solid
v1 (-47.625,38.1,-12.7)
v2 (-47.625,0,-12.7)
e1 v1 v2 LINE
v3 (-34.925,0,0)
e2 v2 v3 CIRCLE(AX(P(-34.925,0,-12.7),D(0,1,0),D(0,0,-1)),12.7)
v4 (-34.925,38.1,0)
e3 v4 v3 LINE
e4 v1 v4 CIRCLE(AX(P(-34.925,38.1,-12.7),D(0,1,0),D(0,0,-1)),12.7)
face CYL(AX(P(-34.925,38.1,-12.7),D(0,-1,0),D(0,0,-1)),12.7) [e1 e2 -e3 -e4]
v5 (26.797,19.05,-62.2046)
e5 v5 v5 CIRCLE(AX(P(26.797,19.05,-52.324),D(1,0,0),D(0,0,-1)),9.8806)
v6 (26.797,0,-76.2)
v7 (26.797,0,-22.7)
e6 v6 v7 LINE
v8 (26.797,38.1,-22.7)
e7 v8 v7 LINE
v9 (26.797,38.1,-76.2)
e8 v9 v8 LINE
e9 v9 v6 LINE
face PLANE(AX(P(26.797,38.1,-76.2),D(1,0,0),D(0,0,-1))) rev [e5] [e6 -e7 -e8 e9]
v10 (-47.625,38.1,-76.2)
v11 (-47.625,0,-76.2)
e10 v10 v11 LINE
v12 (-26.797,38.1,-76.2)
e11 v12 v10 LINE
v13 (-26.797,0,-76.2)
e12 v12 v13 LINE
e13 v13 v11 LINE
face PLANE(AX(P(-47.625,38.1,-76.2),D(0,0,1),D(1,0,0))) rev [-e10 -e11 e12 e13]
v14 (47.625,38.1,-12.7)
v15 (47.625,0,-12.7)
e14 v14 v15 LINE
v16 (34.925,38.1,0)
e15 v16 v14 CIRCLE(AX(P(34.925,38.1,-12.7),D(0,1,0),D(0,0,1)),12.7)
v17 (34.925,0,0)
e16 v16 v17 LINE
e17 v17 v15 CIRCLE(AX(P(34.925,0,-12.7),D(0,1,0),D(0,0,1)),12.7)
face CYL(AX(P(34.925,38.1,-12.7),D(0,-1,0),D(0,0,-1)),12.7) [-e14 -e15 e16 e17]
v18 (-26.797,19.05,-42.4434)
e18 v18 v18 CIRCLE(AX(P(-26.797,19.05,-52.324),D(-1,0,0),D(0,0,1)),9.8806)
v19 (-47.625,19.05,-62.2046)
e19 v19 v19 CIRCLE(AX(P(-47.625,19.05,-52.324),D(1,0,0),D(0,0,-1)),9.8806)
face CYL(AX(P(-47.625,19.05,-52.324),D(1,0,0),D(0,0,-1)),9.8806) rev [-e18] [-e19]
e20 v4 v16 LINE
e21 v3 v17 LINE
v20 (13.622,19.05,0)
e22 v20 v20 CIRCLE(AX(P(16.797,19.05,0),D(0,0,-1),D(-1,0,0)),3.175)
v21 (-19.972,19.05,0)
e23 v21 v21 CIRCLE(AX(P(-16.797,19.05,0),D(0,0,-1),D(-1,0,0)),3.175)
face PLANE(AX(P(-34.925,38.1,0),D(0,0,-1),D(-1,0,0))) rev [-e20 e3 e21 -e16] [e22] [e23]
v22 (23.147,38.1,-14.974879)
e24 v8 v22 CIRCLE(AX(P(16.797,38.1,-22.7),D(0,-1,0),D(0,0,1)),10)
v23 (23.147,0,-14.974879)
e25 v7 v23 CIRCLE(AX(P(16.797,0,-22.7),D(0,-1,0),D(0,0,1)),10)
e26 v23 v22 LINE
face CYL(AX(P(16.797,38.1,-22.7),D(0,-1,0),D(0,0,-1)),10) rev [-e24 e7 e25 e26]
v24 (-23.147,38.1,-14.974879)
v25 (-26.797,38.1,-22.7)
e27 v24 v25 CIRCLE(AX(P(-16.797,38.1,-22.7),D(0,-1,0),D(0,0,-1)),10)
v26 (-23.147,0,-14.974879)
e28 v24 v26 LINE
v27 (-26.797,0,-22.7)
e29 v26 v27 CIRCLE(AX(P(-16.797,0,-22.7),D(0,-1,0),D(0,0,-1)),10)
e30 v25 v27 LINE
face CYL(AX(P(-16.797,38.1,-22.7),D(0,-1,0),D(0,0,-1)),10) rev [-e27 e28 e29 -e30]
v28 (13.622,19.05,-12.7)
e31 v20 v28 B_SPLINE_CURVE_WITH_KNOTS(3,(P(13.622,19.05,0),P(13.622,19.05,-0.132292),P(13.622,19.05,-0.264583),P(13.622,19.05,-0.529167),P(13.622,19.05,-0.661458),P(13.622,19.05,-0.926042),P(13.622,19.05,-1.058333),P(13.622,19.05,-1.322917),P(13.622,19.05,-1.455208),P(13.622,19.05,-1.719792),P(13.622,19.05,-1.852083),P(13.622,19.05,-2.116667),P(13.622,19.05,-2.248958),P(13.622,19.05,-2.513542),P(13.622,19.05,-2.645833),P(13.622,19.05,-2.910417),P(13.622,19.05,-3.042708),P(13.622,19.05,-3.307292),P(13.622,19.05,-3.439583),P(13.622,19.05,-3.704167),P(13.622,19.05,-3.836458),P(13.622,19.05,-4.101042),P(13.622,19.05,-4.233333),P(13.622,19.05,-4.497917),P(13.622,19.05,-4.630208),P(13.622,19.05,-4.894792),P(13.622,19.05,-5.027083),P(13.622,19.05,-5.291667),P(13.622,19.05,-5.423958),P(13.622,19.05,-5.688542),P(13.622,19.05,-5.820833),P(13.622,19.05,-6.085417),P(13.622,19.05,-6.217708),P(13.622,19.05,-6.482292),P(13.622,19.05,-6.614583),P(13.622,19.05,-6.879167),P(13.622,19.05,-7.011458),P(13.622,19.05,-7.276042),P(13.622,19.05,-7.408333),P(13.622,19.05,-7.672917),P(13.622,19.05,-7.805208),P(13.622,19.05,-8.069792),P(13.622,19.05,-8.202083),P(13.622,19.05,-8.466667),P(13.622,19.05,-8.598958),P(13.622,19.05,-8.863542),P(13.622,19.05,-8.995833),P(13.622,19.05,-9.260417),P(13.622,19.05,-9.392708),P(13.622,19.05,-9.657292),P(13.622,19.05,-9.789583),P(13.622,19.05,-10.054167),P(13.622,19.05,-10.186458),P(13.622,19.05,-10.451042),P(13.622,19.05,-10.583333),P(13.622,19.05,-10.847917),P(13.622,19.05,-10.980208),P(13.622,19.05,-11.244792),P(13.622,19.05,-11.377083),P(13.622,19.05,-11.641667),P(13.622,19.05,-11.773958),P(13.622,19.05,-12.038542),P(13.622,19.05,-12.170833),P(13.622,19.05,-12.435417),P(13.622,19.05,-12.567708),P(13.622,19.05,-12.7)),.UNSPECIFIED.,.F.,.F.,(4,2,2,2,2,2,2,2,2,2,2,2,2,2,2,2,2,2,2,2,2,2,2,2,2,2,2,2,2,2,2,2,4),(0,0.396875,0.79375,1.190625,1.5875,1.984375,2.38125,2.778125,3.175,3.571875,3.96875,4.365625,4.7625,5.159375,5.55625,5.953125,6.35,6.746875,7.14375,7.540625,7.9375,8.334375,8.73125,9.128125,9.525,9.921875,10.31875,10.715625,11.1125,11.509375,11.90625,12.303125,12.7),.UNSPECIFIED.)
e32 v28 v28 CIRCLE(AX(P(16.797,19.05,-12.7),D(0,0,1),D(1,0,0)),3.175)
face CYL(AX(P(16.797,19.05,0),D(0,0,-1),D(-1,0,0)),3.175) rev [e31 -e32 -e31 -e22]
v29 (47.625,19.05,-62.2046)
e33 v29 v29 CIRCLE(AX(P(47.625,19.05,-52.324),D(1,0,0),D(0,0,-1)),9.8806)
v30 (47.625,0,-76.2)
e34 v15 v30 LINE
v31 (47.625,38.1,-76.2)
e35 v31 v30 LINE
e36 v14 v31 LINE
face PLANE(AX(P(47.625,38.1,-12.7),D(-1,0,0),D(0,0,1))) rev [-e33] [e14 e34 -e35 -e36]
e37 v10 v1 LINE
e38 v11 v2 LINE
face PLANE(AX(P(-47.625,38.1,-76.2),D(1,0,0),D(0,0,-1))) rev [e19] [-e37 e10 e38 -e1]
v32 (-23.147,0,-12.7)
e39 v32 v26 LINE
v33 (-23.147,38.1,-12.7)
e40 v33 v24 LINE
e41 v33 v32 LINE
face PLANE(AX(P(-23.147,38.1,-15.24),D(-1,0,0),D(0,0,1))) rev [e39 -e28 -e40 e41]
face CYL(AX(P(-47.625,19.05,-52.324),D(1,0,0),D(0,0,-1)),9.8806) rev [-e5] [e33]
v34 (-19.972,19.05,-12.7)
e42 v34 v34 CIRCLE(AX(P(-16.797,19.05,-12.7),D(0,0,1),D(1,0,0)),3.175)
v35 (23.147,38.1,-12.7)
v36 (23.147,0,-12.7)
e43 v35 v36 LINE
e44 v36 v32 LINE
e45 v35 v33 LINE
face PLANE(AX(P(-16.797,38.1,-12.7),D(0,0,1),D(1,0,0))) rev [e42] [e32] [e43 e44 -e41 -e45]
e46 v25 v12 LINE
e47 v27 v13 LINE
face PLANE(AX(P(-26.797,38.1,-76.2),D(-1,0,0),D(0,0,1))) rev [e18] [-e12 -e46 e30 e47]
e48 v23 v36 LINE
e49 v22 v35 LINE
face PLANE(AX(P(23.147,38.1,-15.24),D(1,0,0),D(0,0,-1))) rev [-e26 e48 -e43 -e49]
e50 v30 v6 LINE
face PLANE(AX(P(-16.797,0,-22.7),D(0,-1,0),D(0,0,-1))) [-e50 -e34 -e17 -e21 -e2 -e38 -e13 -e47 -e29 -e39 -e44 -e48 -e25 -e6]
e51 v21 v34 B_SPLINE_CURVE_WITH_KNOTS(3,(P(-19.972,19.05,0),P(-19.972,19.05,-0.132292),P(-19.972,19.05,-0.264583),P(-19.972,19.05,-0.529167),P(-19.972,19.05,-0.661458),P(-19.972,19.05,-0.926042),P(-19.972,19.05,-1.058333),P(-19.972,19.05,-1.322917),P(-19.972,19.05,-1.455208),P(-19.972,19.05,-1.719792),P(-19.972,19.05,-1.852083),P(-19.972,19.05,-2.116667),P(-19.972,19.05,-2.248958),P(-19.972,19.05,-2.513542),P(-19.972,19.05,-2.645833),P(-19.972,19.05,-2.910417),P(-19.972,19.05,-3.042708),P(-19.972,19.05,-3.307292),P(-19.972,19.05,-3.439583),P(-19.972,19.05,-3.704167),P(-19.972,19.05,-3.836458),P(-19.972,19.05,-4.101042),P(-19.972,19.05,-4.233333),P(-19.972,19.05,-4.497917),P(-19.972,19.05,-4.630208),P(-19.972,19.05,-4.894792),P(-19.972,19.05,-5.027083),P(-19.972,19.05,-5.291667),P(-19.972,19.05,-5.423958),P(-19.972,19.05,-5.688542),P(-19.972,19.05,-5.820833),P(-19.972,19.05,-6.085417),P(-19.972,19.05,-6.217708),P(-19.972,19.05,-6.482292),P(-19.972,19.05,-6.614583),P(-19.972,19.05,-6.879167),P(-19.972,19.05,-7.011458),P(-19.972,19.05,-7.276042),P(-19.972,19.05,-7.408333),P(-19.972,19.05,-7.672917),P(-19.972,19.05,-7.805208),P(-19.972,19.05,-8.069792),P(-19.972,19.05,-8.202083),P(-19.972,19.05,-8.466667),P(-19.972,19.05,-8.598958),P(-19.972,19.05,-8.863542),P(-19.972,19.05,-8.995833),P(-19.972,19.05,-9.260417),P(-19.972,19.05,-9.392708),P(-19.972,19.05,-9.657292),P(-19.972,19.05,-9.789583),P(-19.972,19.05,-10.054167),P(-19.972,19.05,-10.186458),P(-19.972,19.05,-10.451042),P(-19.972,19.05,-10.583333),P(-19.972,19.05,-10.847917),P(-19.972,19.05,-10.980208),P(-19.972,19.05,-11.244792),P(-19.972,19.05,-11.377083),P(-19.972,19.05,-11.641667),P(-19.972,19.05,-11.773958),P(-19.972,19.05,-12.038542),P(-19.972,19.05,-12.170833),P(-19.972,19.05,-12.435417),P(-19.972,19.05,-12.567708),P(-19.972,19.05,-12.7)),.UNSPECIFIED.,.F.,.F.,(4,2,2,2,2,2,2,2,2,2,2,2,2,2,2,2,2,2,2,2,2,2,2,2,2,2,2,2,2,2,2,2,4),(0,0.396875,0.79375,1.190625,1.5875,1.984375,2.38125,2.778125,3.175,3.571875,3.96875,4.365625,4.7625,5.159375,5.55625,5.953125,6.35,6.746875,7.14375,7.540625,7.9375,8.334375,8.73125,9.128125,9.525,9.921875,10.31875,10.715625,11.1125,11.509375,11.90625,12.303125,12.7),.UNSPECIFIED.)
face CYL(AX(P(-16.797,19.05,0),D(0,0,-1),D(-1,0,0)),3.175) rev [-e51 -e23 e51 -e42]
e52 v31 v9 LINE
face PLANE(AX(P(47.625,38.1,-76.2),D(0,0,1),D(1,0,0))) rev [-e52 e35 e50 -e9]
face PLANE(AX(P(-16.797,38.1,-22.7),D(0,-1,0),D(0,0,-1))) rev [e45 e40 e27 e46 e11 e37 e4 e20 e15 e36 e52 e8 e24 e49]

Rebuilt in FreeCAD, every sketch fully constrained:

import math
import FreeCAD as App
import Part
import Sketcher
Q = App.Units.Quantity


def add_polygon(sketch, points):
    """Adds a closed chain of lines whose ends are joined by coincident constraints."""
    first, n = sketch.GeometryCount, len(points)
    for a, b in zip(points, points[1:] + points[:1]):
        sketch.addGeometry(Part.LineSegment(App.Vector(*a, 0), App.Vector(*b, 0)), False)
    for i in range(n):
        sketch.addConstraint(Sketcher.Constraint("Coincident", first + i, 2, first + (i + 1) % n, 1))

doc = App.newDocument("Part")
body = doc.addObject("PartDesign::Body", "Body")

# Sketch on XZ plane
sketch1 = body.newObject("Sketcher::SketchObject", "Sketch")
sketch1.AttachmentSupport = (doc.getObject("XZ_Plane"), [""])
sketch1.MapMode = "FlatFace"
sketch1.addGeometry([
    Part.LineSegment(App.Vector(-47.625, -76.2, 0), App.Vector(-47.625, -12.7, 0)),  # 0
    Part.ArcOfCircle(Part.Circle(App.Vector(-34.925, -12.7, 0), App.Vector(0, 0, 1), 12.7), math.radians(90), math.radians(180)),  # 1
    Part.LineSegment(App.Vector(-34.925, 0, 0), App.Vector(34.925, 0, 0)),  # 2
    Part.ArcOfCircle(Part.Circle(App.Vector(34.925, -12.7, 0), App.Vector(0, 0, 1), 12.7), math.radians(0), math.radians(90)),  # 3
    Part.LineSegment(App.Vector(47.625, -12.7, 0), App.Vector(47.625, -76.2, 0)),  # 4
    Part.LineSegment(App.Vector(47.625, -76.2, 0), App.Vector(26.797, -76.2, 0)),  # 5
    Part.LineSegment(App.Vector(26.797, -76.2, 0), App.Vector(26.797, -22.7, 0)),  # 6
    Part.ArcOfCircle(Part.Circle(App.Vector(16.797, -22.7, 0), App.Vector(0, 0, 1), 10), math.radians(0), math.radians(90)),  # 7
    Part.LineSegment(App.Vector(16.797, -12.7, 0), App.Vector(-16.797, -12.7, 0)),  # 8
    Part.ArcOfCircle(Part.Circle(App.Vector(-16.797, -22.7, 0), App.Vector(0, 0, 1), 10), math.radians(90), math.radians(180)),  # 9
    Part.LineSegment(App.Vector(-26.797, -22.7, 0), App.Vector(-26.797, -76.2, 0)),  # 10
    Part.LineSegment(App.Vector(-26.797, -76.2, 0), App.Vector(-47.625, -76.2, 0)),  # 11
], False)
sketch1.addConstraint([
    Sketcher.Constraint("Tangent", 0, 2, 1, 2),
    Sketcher.Constraint("Tangent", 1, 1, 2, 1),
    Sketcher.Constraint("Tangent", 2, 2, 3, 2),
    Sketcher.Constraint("Tangent", 3, 1, 4, 1),
    Sketcher.Constraint("Coincident", 4, 2, 5, 1),
    Sketcher.Constraint("Coincident", 5, 2, 6, 1),
    Sketcher.Constraint("Tangent", 6, 2, 7, 1),
    Sketcher.Constraint("Tangent", 7, 2, 8, 1),
    Sketcher.Constraint("Tangent", 8, 2, 9, 1),
    Sketcher.Constraint("Tangent", 9, 2, 10, 1),
    Sketcher.Constraint("Coincident", 10, 2, 11, 1),
    Sketcher.Constraint("Coincident", 11, 2, 0, 1),
    Sketcher.Constraint("Vertical", 0),
    Sketcher.Constraint("Horizontal", 2),
    Sketcher.Constraint("Vertical", 4),
    Sketcher.Constraint("Horizontal", 5),
    Sketcher.Constraint("Vertical", 6),
    Sketcher.Constraint("Horizontal", 8),
    Sketcher.Constraint("Vertical", 10),
    Sketcher.Constraint("Horizontal", 11),
    Sketcher.Constraint("Equal", 1, 3),
    Sketcher.Constraint("Equal", 7, 9),
    Sketcher.Constraint("Symmetric", 1, 1, 2, 2, -1, 1),
    Sketcher.Constraint("Symmetric", 5, 2, 10, 2, -2),
    Sketcher.Constraint("Horizontal", 3, 1, 7, 2),
    Sketcher.Constraint("Radius", 1, Q("0.5 in")),
    Sketcher.Constraint("DistanceY", 0, 1, 0, 2, Q("2.5 in")),
    Sketcher.Constraint("DistanceX", 2, 1, 2, 2, Q("2.75 in")),
    Sketcher.Constraint("DistanceX", 5, 2, 5, 1, Q("0.82 in")),
    Sketcher.Constraint("Radius", 7, 10.0),
])
pad1 = body.newObject("PartDesign::Pad", "Pad")
pad1.Profile = sketch1
pad1.Length = Q("1.5 in")
pad1.Reversed = True

# Sketch on YZ plane
sketch2 = body.newObject("Sketcher::SketchObject", "Sketch001")
sketch2.AttachmentSupport = (doc.getObject("YZ_Plane"), [""])
sketch2.MapMode = "FlatFace"
sketch2.AttachmentOffset = App.Placement(App.Vector(0, 0, 1.875 * 25.4), App.Rotation())
sketch2.addGeometry(Part.Circle(App.Vector(19.05, -52.324, 0), App.Vector(0, 0, 1), 9.8806), False)
sketch2.addConstraint([
    Sketcher.Constraint("Diameter", 0, Q("0.778 in")),
    Sketcher.Constraint("DistanceX", -1, 1, 0, 3, Q("0.75 in")),
    Sketcher.Constraint("DistanceY", 0, 3, -1, 1, Q("2.06 in")),
])
pocket1 = body.newObject("PartDesign::Pocket", "Pocket")
pocket1.Profile = sketch2
pocket1.Type = "ThroughAll"

# Sketch on XY plane
sketch3 = body.newObject("Sketcher::SketchObject", "Sketch002")
sketch3.AttachmentSupport = (doc.getObject("XY_Plane"), [""])
sketch3.MapMode = "FlatFace"
sketch3.AttachmentOffset = App.Placement(App.Vector(0, 0, -0.5 * 25.4), App.Rotation())
sketch3.addGeometry([
    Part.Circle(App.Vector(16.797, 19.05, 0), App.Vector(0, 0, 1), 3.175),
    Part.Circle(App.Vector(-16.797, 19.05, 0), App.Vector(0, 0, 1), 3.175),
], False)
sketch3.addConstraint([
    Sketcher.Constraint("Equal", 0, 1),
    Sketcher.Constraint("Symmetric", 0, 3, 1, 3, -2),
    Sketcher.Constraint("Diameter", 0, Q("0.25 in")),
    Sketcher.Constraint("DistanceY", -1, 1, 0, 3, Q("0.75 in")),
    Sketcher.Constraint("DistanceX", -1, 1, 0, 3, 16.797),
])
pocket2 = body.newObject("PartDesign::Pocket", "Pocket001")
pocket2.Profile = sketch3
pocket2.Type = "ThroughAll"
pocket2.Midplane = True

# Sketch on XZ plane
sketch4 = body.newObject("Sketcher::SketchObject", "Sketch003")
sketch4.AttachmentSupport = (doc.getObject("XZ_Plane"), [""])
sketch4.MapMode = "FlatFace"
add_polygon(sketch4, [(-23.147, -12.7), (-23.147, -15.24), (23.147, -15.24), (23.147, -12.7)])  # lines 0-3
sketch4.addConstraint([
    Sketcher.Constraint("Vertical", 0),
    Sketcher.Constraint("Horizontal", 1),
    Sketcher.Constraint("Vertical", 2),
    Sketcher.Constraint("Horizontal", 3),
    Sketcher.Constraint("DistanceY", 0, 2, 0, 1, Q("0.1 in")),
    Sketcher.Constraint("DistanceY", 0, 2, -1, 1, Q("0.6 in")),
    Sketcher.Constraint("DistanceX", 1, 1, 1, 2, 46.294),
    Sketcher.Constraint("DistanceX", 0, 2, -1, 1, 23.147),
])
pocket3 = body.newObject("PartDesign::Pocket", "Pocket002")
pocket3.Profile = sketch4
pocket3.Type = "ThroughAll"

doc.recompute()
